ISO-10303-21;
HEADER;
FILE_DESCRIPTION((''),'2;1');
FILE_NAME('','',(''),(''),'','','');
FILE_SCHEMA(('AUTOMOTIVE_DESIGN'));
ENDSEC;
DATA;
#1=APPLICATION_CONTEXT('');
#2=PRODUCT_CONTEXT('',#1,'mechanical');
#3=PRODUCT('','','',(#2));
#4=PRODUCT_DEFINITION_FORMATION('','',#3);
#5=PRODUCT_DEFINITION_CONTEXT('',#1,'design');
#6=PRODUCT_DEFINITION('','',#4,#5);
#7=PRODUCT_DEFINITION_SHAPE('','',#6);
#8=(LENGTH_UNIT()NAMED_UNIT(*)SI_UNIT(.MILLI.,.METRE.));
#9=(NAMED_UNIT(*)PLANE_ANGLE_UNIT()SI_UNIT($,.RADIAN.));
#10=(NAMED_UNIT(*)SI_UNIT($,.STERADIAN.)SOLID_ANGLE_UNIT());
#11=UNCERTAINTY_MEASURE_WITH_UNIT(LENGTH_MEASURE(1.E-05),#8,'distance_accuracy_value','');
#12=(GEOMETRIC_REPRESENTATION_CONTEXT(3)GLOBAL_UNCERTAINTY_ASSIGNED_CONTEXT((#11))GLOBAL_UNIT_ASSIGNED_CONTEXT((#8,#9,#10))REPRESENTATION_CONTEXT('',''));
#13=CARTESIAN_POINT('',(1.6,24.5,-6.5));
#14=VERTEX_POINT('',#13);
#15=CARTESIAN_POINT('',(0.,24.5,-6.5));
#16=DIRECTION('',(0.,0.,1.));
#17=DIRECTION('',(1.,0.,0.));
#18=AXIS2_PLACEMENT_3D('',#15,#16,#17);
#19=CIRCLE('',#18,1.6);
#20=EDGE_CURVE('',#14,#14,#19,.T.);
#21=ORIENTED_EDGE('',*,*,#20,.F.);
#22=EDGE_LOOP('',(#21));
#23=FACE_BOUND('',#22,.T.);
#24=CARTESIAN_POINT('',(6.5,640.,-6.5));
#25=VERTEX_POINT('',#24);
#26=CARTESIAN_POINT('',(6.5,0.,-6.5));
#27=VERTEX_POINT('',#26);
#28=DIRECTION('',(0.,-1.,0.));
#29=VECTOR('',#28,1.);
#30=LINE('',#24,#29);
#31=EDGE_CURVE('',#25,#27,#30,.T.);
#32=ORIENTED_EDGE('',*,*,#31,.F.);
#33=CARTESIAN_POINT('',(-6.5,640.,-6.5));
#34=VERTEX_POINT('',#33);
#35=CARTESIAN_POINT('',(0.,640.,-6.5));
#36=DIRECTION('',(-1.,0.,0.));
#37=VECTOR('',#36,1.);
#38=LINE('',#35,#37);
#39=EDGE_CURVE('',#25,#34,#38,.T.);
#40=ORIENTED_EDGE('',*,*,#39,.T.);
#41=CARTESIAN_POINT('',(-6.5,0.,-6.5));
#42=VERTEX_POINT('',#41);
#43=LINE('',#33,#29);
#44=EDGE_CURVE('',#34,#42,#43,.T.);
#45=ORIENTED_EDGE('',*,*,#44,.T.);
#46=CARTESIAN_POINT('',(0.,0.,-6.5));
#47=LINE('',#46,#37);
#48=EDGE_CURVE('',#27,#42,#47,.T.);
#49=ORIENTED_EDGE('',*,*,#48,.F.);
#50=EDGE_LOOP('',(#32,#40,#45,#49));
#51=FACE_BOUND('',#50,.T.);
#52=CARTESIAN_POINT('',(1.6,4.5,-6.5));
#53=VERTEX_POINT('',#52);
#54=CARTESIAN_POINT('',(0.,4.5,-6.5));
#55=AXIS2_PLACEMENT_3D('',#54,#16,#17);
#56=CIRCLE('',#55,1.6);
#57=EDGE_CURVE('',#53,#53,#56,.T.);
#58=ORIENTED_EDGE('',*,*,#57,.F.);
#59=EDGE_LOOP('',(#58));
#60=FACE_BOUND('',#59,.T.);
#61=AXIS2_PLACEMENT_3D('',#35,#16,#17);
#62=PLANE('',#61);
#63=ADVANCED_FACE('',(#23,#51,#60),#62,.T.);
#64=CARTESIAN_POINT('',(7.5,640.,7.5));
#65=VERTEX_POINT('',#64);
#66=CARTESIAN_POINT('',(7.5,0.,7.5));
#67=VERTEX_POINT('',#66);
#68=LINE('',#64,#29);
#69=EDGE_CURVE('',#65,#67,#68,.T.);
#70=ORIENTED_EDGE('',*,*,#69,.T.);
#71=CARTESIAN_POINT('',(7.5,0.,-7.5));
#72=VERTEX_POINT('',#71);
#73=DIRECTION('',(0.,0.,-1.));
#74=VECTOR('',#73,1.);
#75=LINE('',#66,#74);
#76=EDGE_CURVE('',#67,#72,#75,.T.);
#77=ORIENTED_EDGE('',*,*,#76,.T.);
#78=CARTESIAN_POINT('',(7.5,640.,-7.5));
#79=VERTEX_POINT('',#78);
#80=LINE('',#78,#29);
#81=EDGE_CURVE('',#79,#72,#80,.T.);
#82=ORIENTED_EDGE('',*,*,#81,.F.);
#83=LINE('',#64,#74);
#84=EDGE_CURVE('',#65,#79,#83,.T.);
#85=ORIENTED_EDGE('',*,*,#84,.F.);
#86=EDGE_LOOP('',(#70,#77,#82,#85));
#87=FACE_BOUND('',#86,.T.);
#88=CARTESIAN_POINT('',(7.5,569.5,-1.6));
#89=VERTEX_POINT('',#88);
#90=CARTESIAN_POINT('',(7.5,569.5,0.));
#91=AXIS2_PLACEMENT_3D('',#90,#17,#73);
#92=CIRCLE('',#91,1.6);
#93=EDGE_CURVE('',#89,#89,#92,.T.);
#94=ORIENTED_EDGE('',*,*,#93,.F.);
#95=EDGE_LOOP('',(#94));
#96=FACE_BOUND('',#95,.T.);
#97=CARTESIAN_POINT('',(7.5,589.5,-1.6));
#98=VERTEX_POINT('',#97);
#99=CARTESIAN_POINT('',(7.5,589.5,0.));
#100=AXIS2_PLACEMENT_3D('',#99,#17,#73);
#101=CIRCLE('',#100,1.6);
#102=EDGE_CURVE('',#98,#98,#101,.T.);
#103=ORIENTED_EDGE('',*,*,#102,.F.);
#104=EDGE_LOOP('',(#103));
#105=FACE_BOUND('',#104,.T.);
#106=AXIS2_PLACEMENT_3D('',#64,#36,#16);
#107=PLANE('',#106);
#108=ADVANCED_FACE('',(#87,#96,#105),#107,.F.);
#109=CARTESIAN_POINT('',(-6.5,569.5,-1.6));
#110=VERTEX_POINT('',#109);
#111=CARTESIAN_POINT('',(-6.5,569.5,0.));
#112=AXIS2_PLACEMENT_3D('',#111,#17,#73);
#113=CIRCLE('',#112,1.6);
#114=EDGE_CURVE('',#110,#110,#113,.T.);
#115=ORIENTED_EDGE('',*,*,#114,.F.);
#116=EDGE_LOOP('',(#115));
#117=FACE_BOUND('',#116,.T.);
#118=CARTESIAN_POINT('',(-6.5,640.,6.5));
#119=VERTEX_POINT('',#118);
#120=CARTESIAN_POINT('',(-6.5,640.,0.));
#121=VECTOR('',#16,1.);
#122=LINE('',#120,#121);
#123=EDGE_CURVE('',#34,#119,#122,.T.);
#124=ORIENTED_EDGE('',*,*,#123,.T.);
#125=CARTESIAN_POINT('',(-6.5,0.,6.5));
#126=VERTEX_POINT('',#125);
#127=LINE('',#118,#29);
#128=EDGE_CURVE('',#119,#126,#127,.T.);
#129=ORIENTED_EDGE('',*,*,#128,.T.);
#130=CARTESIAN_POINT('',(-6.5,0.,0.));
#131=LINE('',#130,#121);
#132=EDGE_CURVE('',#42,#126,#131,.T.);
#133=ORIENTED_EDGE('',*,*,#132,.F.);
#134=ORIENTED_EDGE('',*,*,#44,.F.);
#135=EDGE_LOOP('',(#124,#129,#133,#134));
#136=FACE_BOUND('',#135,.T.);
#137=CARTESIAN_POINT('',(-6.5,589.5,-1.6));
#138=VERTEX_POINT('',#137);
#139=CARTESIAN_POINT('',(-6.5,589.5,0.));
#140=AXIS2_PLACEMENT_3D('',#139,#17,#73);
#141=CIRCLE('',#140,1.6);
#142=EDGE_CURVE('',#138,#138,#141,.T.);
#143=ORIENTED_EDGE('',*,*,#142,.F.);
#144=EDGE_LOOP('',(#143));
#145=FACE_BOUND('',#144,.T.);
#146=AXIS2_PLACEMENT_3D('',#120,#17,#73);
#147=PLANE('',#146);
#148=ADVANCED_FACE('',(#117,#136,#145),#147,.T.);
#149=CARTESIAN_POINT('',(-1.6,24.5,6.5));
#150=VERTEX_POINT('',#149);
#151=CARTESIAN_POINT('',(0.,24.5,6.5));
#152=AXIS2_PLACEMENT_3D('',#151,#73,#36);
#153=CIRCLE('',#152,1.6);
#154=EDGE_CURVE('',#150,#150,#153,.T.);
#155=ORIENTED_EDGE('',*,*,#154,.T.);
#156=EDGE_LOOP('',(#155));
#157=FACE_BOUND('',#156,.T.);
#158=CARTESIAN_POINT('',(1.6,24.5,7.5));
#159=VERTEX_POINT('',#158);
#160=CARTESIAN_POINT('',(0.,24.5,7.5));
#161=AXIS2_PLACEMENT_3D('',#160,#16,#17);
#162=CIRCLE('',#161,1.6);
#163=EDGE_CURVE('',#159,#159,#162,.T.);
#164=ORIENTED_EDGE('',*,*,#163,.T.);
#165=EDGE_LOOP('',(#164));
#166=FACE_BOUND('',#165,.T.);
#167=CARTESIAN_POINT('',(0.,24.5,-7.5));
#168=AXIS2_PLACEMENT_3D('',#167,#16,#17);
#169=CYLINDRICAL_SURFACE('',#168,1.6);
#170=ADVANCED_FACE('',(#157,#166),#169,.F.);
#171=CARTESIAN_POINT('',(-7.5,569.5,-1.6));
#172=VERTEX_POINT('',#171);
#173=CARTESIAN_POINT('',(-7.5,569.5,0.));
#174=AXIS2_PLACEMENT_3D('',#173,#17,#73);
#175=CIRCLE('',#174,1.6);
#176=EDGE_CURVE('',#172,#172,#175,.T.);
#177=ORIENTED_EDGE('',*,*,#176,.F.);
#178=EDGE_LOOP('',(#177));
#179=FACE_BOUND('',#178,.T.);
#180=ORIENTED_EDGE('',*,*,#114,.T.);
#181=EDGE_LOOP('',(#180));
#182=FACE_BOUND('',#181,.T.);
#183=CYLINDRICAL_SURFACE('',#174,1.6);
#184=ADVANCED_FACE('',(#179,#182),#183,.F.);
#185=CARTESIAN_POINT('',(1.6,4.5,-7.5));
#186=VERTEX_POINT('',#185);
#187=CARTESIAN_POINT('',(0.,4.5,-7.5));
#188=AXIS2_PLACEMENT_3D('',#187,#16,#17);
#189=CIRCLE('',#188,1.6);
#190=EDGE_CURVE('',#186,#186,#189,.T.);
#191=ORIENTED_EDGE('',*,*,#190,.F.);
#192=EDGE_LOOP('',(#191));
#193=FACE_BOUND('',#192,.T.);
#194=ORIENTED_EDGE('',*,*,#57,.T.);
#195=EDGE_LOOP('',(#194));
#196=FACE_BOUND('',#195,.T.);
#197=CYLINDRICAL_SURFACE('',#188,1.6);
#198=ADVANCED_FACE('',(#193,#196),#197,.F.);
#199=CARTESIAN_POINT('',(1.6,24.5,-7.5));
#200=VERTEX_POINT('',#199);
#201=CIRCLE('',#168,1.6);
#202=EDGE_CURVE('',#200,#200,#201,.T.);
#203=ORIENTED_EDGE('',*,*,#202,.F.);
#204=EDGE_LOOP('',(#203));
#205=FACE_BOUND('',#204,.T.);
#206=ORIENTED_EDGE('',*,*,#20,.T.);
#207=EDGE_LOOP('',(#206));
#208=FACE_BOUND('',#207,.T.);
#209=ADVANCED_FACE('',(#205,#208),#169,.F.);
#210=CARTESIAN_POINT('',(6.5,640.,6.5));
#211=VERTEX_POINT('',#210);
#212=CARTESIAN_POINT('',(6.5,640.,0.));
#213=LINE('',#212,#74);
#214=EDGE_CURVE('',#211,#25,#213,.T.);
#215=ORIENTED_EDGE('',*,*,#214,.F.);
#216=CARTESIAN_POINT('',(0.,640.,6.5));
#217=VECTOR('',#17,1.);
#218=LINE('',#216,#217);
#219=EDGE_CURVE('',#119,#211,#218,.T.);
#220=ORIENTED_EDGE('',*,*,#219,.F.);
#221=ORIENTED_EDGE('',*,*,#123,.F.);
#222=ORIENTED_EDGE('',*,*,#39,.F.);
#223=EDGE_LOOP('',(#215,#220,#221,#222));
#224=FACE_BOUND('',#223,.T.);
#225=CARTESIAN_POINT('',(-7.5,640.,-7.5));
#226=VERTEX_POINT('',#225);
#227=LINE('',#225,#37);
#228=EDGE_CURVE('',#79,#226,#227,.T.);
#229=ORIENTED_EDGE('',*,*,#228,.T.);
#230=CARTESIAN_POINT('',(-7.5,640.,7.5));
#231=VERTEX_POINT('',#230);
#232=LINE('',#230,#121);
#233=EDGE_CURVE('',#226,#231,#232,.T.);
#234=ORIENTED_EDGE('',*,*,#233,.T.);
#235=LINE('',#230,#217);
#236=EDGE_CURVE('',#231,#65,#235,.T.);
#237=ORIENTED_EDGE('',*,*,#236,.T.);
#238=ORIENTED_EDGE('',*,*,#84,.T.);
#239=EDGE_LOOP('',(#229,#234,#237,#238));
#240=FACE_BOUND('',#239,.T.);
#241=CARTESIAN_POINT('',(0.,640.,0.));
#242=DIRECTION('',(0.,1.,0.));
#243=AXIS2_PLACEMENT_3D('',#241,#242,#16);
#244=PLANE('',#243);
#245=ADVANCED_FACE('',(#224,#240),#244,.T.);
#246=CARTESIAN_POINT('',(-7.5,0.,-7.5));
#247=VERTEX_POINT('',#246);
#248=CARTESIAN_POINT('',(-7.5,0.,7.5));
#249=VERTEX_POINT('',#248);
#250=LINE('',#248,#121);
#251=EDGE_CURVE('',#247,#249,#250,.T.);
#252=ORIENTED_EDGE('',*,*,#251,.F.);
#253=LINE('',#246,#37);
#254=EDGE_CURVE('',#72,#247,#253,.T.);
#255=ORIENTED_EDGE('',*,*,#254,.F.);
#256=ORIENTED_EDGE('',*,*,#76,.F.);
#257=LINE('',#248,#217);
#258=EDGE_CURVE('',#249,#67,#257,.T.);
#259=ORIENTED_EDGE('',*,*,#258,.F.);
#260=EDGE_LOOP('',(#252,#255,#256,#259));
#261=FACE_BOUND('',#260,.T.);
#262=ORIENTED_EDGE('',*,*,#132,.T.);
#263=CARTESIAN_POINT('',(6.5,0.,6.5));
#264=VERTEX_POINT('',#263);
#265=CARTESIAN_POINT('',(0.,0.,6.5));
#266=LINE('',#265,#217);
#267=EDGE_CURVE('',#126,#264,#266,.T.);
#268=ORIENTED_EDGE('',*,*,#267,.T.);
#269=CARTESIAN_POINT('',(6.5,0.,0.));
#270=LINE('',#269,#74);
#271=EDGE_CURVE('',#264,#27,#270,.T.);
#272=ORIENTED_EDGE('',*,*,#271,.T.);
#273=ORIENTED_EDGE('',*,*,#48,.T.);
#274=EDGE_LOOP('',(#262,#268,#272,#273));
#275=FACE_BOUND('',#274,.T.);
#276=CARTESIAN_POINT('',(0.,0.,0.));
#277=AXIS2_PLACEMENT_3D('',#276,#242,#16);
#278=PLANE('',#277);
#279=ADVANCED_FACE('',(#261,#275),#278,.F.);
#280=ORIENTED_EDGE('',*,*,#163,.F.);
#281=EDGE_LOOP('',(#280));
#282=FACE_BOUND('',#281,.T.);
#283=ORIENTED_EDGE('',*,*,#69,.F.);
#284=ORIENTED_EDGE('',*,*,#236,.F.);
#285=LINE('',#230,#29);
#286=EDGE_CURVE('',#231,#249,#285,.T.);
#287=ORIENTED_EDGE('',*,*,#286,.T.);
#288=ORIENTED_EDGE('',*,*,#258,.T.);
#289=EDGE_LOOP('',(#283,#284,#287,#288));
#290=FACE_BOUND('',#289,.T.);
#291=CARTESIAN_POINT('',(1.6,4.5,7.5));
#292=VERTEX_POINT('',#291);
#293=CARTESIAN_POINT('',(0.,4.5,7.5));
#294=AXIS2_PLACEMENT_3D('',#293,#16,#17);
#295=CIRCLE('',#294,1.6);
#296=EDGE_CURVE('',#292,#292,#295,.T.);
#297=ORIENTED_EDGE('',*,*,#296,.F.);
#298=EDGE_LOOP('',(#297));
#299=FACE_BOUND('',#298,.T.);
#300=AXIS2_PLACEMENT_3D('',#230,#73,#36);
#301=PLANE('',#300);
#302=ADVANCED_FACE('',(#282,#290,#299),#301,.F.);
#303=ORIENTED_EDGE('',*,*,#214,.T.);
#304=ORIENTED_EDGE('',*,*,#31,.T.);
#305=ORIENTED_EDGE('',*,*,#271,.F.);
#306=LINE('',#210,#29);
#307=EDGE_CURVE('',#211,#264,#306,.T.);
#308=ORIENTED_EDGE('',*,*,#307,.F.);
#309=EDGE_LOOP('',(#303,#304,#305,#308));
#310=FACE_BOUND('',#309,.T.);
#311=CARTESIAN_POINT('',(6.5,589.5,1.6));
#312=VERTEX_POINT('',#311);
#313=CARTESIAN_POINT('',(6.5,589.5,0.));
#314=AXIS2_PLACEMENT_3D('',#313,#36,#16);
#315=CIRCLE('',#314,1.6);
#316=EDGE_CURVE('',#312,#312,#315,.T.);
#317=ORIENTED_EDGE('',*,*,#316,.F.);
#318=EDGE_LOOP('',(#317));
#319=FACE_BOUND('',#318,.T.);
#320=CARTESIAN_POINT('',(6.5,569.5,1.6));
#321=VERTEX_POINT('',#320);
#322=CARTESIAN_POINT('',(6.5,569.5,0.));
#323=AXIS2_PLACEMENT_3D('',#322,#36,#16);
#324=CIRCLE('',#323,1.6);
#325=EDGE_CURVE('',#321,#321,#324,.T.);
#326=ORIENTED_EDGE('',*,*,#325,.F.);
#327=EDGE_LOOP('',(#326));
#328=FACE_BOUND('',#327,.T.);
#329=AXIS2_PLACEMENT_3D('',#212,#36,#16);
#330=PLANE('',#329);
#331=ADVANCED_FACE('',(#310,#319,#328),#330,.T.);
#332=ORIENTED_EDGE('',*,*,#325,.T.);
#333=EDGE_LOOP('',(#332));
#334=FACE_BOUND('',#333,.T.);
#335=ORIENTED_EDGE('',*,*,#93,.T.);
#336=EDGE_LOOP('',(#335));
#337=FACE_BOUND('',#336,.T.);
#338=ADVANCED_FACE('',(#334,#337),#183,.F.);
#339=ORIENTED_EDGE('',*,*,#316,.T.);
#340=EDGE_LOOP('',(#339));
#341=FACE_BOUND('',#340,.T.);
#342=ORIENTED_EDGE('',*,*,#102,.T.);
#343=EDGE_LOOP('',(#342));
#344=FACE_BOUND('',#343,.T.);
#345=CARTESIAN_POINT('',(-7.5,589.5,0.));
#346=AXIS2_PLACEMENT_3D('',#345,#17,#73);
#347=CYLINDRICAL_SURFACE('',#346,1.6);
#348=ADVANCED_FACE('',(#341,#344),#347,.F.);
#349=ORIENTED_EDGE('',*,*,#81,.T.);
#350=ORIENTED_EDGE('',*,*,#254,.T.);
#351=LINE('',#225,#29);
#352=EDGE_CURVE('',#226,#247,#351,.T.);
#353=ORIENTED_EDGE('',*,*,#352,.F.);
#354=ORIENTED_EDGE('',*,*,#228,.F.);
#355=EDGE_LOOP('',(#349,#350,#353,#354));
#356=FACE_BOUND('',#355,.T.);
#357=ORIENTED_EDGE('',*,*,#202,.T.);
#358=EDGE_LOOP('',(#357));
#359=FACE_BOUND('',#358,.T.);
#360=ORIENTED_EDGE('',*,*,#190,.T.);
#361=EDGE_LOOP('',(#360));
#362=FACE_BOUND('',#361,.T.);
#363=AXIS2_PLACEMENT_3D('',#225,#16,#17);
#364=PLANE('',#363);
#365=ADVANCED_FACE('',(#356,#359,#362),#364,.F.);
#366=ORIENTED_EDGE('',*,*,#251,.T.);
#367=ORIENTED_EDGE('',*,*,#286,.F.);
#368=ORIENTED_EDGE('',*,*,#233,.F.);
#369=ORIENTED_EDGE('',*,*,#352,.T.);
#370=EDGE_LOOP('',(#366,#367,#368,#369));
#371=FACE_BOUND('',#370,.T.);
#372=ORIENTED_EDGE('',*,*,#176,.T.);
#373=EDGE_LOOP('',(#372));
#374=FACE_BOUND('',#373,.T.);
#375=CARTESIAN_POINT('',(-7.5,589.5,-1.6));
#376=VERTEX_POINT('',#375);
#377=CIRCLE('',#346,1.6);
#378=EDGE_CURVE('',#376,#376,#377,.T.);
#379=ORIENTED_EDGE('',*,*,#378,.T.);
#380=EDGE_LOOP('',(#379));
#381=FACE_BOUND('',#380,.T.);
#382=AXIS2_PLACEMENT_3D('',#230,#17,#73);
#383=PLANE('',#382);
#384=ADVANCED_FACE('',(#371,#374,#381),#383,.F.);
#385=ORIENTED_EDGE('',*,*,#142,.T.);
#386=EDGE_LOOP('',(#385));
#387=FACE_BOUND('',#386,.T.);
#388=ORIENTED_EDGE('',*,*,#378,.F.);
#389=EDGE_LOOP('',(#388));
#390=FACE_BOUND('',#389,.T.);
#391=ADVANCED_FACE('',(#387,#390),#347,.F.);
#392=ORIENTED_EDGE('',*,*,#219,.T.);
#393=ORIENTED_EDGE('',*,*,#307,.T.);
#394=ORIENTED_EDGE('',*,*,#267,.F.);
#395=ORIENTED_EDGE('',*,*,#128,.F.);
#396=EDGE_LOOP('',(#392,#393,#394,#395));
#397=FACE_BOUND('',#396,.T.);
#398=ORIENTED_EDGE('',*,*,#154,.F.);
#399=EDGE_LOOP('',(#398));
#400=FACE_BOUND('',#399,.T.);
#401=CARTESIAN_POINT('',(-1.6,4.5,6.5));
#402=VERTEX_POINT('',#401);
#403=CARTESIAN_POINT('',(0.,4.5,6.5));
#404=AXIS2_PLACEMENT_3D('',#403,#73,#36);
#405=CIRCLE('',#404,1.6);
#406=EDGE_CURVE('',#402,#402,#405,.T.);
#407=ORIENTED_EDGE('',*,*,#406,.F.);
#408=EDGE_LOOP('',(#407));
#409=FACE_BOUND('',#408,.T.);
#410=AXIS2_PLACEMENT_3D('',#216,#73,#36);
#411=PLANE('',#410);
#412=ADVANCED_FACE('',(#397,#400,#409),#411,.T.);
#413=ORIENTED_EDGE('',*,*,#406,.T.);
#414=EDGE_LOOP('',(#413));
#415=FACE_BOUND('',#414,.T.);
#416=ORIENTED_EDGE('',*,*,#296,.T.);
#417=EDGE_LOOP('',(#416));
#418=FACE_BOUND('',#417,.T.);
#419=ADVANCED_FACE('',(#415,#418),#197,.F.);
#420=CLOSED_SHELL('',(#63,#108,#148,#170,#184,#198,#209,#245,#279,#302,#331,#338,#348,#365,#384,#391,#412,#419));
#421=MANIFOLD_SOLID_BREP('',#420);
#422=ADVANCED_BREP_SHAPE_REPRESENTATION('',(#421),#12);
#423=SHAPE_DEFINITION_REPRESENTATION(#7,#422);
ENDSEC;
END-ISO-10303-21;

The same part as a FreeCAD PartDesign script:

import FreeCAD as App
import Part
import Sketcher

V = App.Vector


def add_polygon(sketch, points):
    """Adds a closed chain of lines whose ends are joined by coincident constraints."""
    first, n = sketch.GeometryCount, len(points)
    for a, b in zip(points, points[1:] + points[:1]):
        sketch.addGeometry(Part.LineSegment(App.Vector(*a, 0), App.Vector(*b, 0)), False)
    for i in range(n):
        sketch.addConstraint(Sketcher.Constraint("Coincident", first + i, 2, first + (i + 1) % n, 1))

doc = App.newDocument("Part")
body = doc.addObject("PartDesign::Body", "Body")

sketch1 = body.newObject("Sketcher::SketchObject", "Sketch")
sketch1.AttachmentSupport = (doc.getObject("XZ_Plane"), [""])
sketch1.MapMode = "FlatFace"
add_polygon(sketch1, [(-7.5, -7.5), (-7.5, 7.5), (7.5, 7.5), (7.5, -7.5)])
add_polygon(sketch1, [(6.5, 6.5), (-6.5, 6.5), (-6.5, -6.5), (6.5, -6.5)])
sketch1.addConstraint(Sketcher.Constraint("Vertical", 0))
sketch1.addConstraint(Sketcher.Constraint("Horizontal", 1))
sketch1.addConstraint(Sketcher.Constraint("Vertical", 2))
sketch1.addConstraint(Sketcher.Constraint("Horizontal", 3))
sketch1.addConstraint(Sketcher.Constraint("Horizontal", 4))
sketch1.addConstraint(Sketcher.Constraint("Vertical", 5))
sketch1.addConstraint(Sketcher.Constraint("Horizontal", 6))
sketch1.addConstraint(Sketcher.Constraint("Vertical", 7))
sketch1.addConstraint(Sketcher.Constraint("Symmetric", 0, 2, 2, 2, -1, 1))
sketch1.addConstraint(Sketcher.Constraint("Symmetric", 4, 2, 6, 2, -1, 1))
sketch1.addConstraint(Sketcher.Constraint("Equal", 3, 0))
sketch1.addConstraint(Sketcher.Constraint("Equal", 6, 5))
sketch1.addConstraint(Sketcher.Constraint("DistanceX", 1, 1, 1, 2, 15.0))
sketch1.addConstraint(Sketcher.Constraint("DistanceX", 4, 2, 4, 1, 13.0))
pad1 = body.newObject("PartDesign::Pad", "Pad")
pad1.Profile = sketch1
pad1.Length = 640
pad1.Reversed = True

sketch2 = body.newObject("Sketcher::SketchObject", "Sketch001")
sketch2.AttachmentSupport = (doc.getObject("XY_Plane"), [""])
sketch2.MapMode = "FlatFace"
sketch2.AttachmentOffset = App.Placement(V(0, 0, 7.5), App.Rotation())
sketch2.addGeometry(Part.Circle(V(0, 4.5, 0), V(0, 0, 1), 1.6), False)
sketch2.addGeometry(Part.Circle(V(0, 24.5, 0), V(0, 0, 1), 1.6), False)
sketch2.addConstraint(Sketcher.Constraint("Equal", 0, 1))
sketch2.addConstraint(Sketcher.Constraint("PointOnObject", 0, 3, -2))
sketch2.addConstraint(Sketcher.Constraint("PointOnObject", 1, 3, -2))
sketch2.addConstraint(Sketcher.Constraint("Diameter", 0, 3.2))
sketch2.addConstraint(Sketcher.Constraint("DistanceY", 0, 3, 1, 3, 20.0))
sketch2.addConstraint(Sketcher.Constraint("DistanceY", -1, 1, 0, 3, 4.5))
pocket1 = body.newObject("PartDesign::Pocket", "Pocket")
pocket1.Profile = sketch2
pocket1.Type = "ThroughAll"

sketch3 = body.newObject("Sketcher::SketchObject", "Sketch002")
sketch3.AttachmentSupport = (doc.getObject("YZ_Plane"), [""])
sketch3.MapMode = "FlatFace"
sketch3.AttachmentOffset = App.Placement(V(0, 0, 7.5), App.Rotation())
sketch3.addGeometry(Part.Circle(V(589.5, 0, 0), V(0, 0, 1), 1.6), False)
sketch3.addGeometry(Part.Circle(V(569.5, 0, 0), V(0, 0, 1), 1.6), False)
sketch3.addConstraint(Sketcher.Constraint("Equal", 0, 1))
sketch3.addConstraint(Sketcher.Constraint("PointOnObject", 0, 3, -1))
sketch3.addConstraint(Sketcher.Constraint("PointOnObject", 1, 3, -1))
sketch3.addConstraint(Sketcher.Constraint("Diameter", 0, 3.2))
sketch3.addConstraint(Sketcher.Constraint("DistanceX", 1, 3, 0, 3, 20.0))
sketch3.addConstraint(Sketcher.Constraint("DistanceX", -1, 1, 0, 3, 589.5))
pocket2 = body.newObject("PartDesign::Pocket", "Pocket001")
pocket2.Profile = sketch3
pocket2.Type = "ThroughAll"

doc.recompute()
